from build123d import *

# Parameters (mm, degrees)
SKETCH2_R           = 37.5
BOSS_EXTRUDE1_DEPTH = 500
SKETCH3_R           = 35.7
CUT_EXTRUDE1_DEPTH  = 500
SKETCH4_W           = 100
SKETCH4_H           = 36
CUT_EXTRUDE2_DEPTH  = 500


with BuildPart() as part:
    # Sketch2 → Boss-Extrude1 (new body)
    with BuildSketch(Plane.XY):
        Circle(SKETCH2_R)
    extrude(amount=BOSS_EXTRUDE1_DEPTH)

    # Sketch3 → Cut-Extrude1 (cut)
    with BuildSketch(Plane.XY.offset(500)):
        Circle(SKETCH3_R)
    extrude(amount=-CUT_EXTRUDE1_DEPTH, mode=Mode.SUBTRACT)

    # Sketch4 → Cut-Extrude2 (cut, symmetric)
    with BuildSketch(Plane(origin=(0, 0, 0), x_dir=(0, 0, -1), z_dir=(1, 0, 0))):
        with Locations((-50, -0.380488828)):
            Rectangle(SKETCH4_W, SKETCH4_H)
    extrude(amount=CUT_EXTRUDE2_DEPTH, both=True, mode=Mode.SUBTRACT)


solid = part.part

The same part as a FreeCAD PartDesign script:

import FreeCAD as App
import Part
import Sketcher

V = App.Vector
Q = App.Units.Quantity


def add_polygon(sketch, points):
    """Adds a closed chain of lines whose ends are joined by coincident constraints."""
    first, n = sketch.GeometryCount, len(points)
    for a, b in zip(points, points[1:] + points[:1]):
        sketch.addGeometry(Part.LineSegment(App.Vector(*a, 0), App.Vector(*b, 0)), False)
    for i in range(n):
        sketch.addConstraint(Sketcher.Constraint("Coincident", first + i, 2, first + (i + 1) % n, 1))

doc = App.newDocument("Part")
body = doc.addObject("PartDesign::Body", "Body")

# Sketch on XY plane
sketch1 = body.newObject("Sketcher::SketchObject", "Sketch")
sketch1.AttachmentSupport = (doc.getObject("XY_Plane"), [""])
sketch1.MapMode = "FlatFace"
sketch1.addGeometry(Part.Circle(V(0, 0, 0), V(0, 0, 1), 38), False)
sketch1.addConstraint(Sketcher.Constraint("Coincident", 0, 3, -1, 1))
sketch1.addConstraint(Sketcher.Constraint("Diameter", 0, Q("75 mm")))
pad1 = body.newObject("PartDesign::Pad", "Pad")
pad1.Profile = sketch1
pad1.Length = 500

# Sketch on XY plane
sketch2 = body.newObject("Sketcher::SketchObject", "Sketch001")
sketch2.AttachmentSupport = (doc.getObject("XY_Plane"), [""])
sketch2.MapMode = "FlatFace"
sketch2.AttachmentOffset = App.Placement(V(0, 0, 500), App.Rotation())
sketch2.addGeometry(Part.Circle(V(0, 0, 0), V(0, 0, 1), 36), False)
sketch2.addConstraint(Sketcher.Constraint("Coincident", 0, 3, -1, 1))
sketch2.addConstraint(Sketcher.Constraint("Diameter", 0, Q("71.4 mm")))
pocket1 = body.newObject("PartDesign::Pocket", "Pocket")
pocket1.Profile = sketch2
pocket1.Length = 500

# Sketch on YZ plane
sketch3 = body.newObject("Sketcher::SketchObject", "Sketch002")
sketch3.AttachmentSupport = (doc.getObject("YZ_Plane"), [""])
sketch3.MapMode = "FlatFace"
add_polygon(sketch3, [(18, 100), (-18, 100), (-18, 0), (18, 0)])  # lines 0-3
sketch3.addConstraint(Sketcher.Constraint("Horizontal", 0))
sketch3.addConstraint(Sketcher.Constraint("Vertical", 1))
sketch3.addConstraint(Sketcher.Constraint("Horizontal", 2))
sketch3.addConstraint(Sketcher.Constraint("Vertical", 3))
sketch3.addConstraint(Sketcher.Constraint("PointOnObject", 1, 2, -1))
sketch3.addConstraint(Sketcher.Constraint("DistanceX", 0, 2, 0, 1, Q("36 mm")))
sketch3.addConstraint(Sketcher.Constraint("DistanceY", 1, 2, 1, 1, Q("100 mm")))
sketch3.addConstraint(Sketcher.Constraint("DistanceX", 0, 2, -1, 1, Q("18.380489 mm")))
pocket2 = body.newObject("PartDesign::Pocket", "Pocket001")
pocket2.Profile = sketch3
pocket2.Length = 1000
pocket2.Midplane = True

doc.recompute()
